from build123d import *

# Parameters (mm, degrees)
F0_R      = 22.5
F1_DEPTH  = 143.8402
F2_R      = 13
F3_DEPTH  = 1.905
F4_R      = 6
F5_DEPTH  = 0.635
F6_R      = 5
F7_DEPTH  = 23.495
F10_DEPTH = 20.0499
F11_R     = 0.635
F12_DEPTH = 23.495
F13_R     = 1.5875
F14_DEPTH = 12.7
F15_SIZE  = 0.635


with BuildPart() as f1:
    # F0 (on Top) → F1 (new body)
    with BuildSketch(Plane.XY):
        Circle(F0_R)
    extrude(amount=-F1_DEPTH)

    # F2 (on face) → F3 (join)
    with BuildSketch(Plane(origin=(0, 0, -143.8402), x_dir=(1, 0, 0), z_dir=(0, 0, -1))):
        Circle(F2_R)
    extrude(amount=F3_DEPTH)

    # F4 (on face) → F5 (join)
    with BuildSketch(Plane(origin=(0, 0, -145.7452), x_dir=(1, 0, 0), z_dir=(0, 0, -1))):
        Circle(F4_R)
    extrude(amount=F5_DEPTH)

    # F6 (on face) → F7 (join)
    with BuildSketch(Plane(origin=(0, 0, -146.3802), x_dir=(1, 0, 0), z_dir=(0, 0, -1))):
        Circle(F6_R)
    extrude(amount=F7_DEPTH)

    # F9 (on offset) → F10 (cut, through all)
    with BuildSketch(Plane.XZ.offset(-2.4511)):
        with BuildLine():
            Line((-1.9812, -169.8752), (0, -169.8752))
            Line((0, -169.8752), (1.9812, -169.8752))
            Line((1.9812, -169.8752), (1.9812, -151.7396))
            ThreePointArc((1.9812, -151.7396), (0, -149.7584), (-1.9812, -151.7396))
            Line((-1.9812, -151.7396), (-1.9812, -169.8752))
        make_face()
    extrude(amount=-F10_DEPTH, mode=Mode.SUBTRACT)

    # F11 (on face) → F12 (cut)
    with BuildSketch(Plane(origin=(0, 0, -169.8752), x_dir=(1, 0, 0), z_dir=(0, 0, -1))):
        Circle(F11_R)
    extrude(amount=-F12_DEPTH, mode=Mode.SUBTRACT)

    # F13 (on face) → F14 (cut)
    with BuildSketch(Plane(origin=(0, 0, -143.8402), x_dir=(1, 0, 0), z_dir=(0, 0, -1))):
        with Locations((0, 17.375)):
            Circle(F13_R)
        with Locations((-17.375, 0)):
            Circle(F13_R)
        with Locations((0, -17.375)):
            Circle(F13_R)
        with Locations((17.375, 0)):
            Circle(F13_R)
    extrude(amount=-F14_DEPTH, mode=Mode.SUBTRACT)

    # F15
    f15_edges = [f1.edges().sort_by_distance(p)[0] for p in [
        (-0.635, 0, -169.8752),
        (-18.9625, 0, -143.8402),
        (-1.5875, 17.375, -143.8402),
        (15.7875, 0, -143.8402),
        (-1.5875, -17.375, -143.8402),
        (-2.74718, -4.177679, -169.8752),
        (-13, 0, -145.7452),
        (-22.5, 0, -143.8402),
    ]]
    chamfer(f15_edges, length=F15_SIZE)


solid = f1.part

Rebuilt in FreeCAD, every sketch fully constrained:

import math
import FreeCAD as App
import Part
import Sketcher
from FreeCAD import Vector
Q = App.Units.Quantity


def edges_at(feature, points):
    """Names of the edges that pass closest to the given points."""
    edges = feature.Shape.Edges
    near = lambda p: min(range(len(edges)), key=lambda i: edges[i].distToShape(Part.Vertex(*p))[0])
    return sorted({f"Edge{near(p) + 1}" for p in points})

doc = App.newDocument("Part")
body = doc.addObject("PartDesign::Body", "Body")

# Sketch on XY plane
sketch1 = body.newObject("Sketcher::SketchObject", "Sketch")
sketch1.AttachmentSupport = (doc.getObject("XY_Plane"), [""])
sketch1.MapMode = "FlatFace"
sketch1.addGeometry(Part.Circle(Vector(0, 0, 0), Vector(0, 0, 1), 22), False)
sketch1.addConstraint(Sketcher.Constraint("Coincident", 0, 3, -1, 1))
sketch1.addConstraint(Sketcher.Constraint("Diameter", 0, 45.0))
pad1 = body.newObject("PartDesign::Pad", "Pad")
pad1.Profile = sketch1
pad1.Length = Q("5.663 in")
pad1.Reversed = True

# Sketch on XY plane
sketch2 = body.newObject("Sketcher::SketchObject", "Sketch001")
sketch2.AttachmentSupport = (doc.getObject("XY_Plane"), [""])
sketch2.MapMode = "FlatFace"
sketch2.AttachmentOffset = App.Placement(Vector(0, 0, -5.663 * 25.4), App.Rotation())
sketch2.addGeometry(Part.Circle(Vector(0, 0, 0), Vector(0, 0, 1), 13), False)
sketch2.addConstraint(Sketcher.Constraint("Coincident", 0, 3, -1, 1))
sketch2.addConstraint(Sketcher.Constraint("Diameter", 0, 26.0))
pad2 = body.newObject("PartDesign::Pad", "Pad001")
pad2.Profile = sketch2
pad2.Length = Q("0.075 in")
pad2.Reversed = True

# Sketch on XY plane
sketch3 = body.newObject("Sketcher::SketchObject", "Sketch002")
sketch3.AttachmentSupport = (doc.getObject("XY_Plane"), [""])
sketch3.MapMode = "FlatFace"
sketch3.AttachmentOffset = App.Placement(Vector(0, 0, -5.738 * 25.4), App.Rotation())
sketch3.addGeometry(Part.Circle(Vector(0, 0, 0), Vector(0, 0, 1), 6), False)
sketch3.addConstraint(Sketcher.Constraint("Coincident", 0, 3, -1, 1))
sketch3.addConstraint(Sketcher.Constraint("Diameter", 0, 12.0))
pad3 = body.newObject("PartDesign::Pad", "Pad002")
pad3.Profile = sketch3
pad3.Length = Q("0.025 in")
pad3.Reversed = True

# Sketch on XY plane
sketch4 = body.newObject("Sketcher::SketchObject", "Sketch003")
sketch4.AttachmentSupport = (doc.getObject("XY_Plane"), [""])
sketch4.MapMode = "FlatFace"
sketch4.AttachmentOffset = App.Placement(Vector(0, 0, -5.763 * 25.4), App.Rotation())
sketch4.addGeometry(Part.Circle(Vector(0, 0, 0), Vector(0, 0, 1), 5), False)
sketch4.addConstraint(Sketcher.Constraint("Coincident", 0, 3, -1, 1))
sketch4.addConstraint(Sketcher.Constraint("Diameter", 0, 10.0))
pad4 = body.newObject("PartDesign::Pad", "Pad003")
pad4.Profile = sketch4
pad4.Length = Q("0.925 in")
pad4.Reversed = True

# Sketch on XZ plane
sketch5 = body.newObject("Sketcher::SketchObject", "Sketch004")
sketch5.AttachmentSupport = (doc.getObject("XZ_Plane"), [""])
sketch5.MapMode = "FlatFace"
sketch5.AttachmentOffset = App.Placement(Vector(0, 0, -0.0965 * 25.4), App.Rotation())
sketch5.addGeometry(Part.LineSegment(Vector(-2, -169.9, 0), Vector(2, -169.9, 0)), False)
sketch5.addGeometry(Part.LineSegment(Vector(2, -169.9, 0), Vector(2, -151.7, 0)), False)
sketch5.addGeometry(Part.ArcOfCircle(Part.Circle(Vector(0, -151.7, 0), Vector(0, 0, 1), 2), math.radians(0), math.radians(180)), False)
sketch5.addGeometry(Part.LineSegment(Vector(-2, -151.7, 0), Vector(-2, -169.9, 0)), False)
sketch5.addConstraint(Sketcher.Constraint("Coincident", 0, 2, 1, 1))
sketch5.addConstraint(Sketcher.Constraint("Tangent", 1, 2, 2, 1))
sketch5.addConstraint(Sketcher.Constraint("Tangent", 2, 2, 3, 1))
sketch5.addConstraint(Sketcher.Constraint("Coincident", 3, 2, 0, 1))
sketch5.addConstraint(Sketcher.Constraint("Horizontal", 0))
sketch5.addConstraint(Sketcher.Constraint("Vertical", 1))
sketch5.addConstraint(Sketcher.Constraint("Vertical", 3))
sketch5.addConstraint(Sketcher.Constraint("PointOnObject", 2, 3, -2))
sketch5.addConstraint(Sketcher.Constraint("Radius", 2, Q("0.078 in")))
sketch5.addConstraint(Sketcher.Constraint("DistanceY", 1, 1, 1, 2, Q("0.714 in")))
sketch5.addConstraint(Sketcher.Constraint("DistanceY", 2, 3, -1, 1, Q("5.974 in")))
pocket1 = body.newObject("PartDesign::Pocket", "Pocket")
pocket1.Profile = sketch5
pocket1.Type = "ThroughAll"

# Sketch on XY plane
sketch6 = body.newObject("Sketcher::SketchObject", "Sketch005")
sketch6.AttachmentSupport = (doc.getObject("XY_Plane"), [""])
sketch6.MapMode = "FlatFace"
sketch6.AttachmentOffset = App.Placement(Vector(0, 0, -6.688 * 25.4), App.Rotation())
sketch6.addGeometry(Part.Circle(Vector(0, 0, 0), Vector(0, 0, 1), 0.6), False)
sketch6.addConstraint(Sketcher.Constraint("Coincident", 0, 3, -1, 1))
sketch6.addConstraint(Sketcher.Constraint("Diameter", 0, Q("0.05 in")))
pocket2 = body.newObject("PartDesign::Pocket", "Pocket001")
pocket2.Profile = sketch6
pocket2.Length = Q("0.925 in")
pocket2.Reversed = True

# Sketch on XY plane
sketch7 = body.newObject("Sketcher::SketchObject", "Sketch006")
sketch7.AttachmentSupport = (doc.getObject("XY_Plane"), [""])
sketch7.MapMode = "FlatFace"
sketch7.AttachmentOffset = App.Placement(Vector(0, 0, -5.663 * 25.4), App.Rotation())
sketch7.addGeometry(Part.Circle(Vector(0, -17.4, 0), Vector(0, 0, 1), 1.6), False)
sketch7.addGeometry(Part.Circle(Vector(-17.4, 0, 0), Vector(0, 0, 1), 1.6), False)
sketch7.addGeometry(Part.Circle(Vector(0, 17.4, 0), Vector(0, 0, 1), 1.6), False)
sketch7.addGeometry(Part.Circle(Vector(17.4, 0, 0), Vector(0, 0, 1), 1.6), False)
sketch7.addConstraint(Sketcher.Constraint("Equal", 0, 1))
sketch7.addConstraint(Sketcher.Constraint("Equal", 1, 2))
sketch7.addConstraint(Sketcher.Constraint("Equal", 2, 3))
sketch7.addConstraint(Sketcher.Constraint("Symmetric", 0, 3, 2, 3, -1, 1))
sketch7.addConstraint(Sketcher.Constraint("Symmetric", 1, 3, 3, 3, -1, 1))
sketch7.addConstraint(Sketcher.Constraint("PointOnObject", 0, 3, -2))
sketch7.addConstraint(Sketcher.Constraint("PointOnObject", 1, 3, -1))
sketch7.addConstraint(Sketcher.Constraint("Diameter", 0, Q("0.125 in")))
sketch7.addConstraint(Sketcher.Constraint("DistanceY", 0, 3, -1, 1, 17.375))
sketch7.addConstraint(Sketcher.Constraint("DistanceX", 1, 3, -1, 1, 17.375))
pocket3 = body.newObject("PartDesign::Pocket", "Pocket002")
pocket3.Profile = sketch7
pocket3.Length = Q("0.5 in")
pocket3.Reversed = True
doc.recompute()

chamfer = body.newObject("PartDesign::Chamfer", "Chamfer")
chamfer.Base = (pocket3, edges_at(pocket3, [
    (-0.635, 0, -169.875),
    (-18.962, 0, -143.84),
    (-1.587, 17.375, -143.84),
    (15.787, 0, -143.84),
    (-1.587, -17.375, -143.84),
    (-2.747, -4.178, -169.875),
    (-13, 0, -145.745),
    (-22.5, 0, -143.84),
]))
chamfer.Size = Q("0.025 in")

doc.recompute()
